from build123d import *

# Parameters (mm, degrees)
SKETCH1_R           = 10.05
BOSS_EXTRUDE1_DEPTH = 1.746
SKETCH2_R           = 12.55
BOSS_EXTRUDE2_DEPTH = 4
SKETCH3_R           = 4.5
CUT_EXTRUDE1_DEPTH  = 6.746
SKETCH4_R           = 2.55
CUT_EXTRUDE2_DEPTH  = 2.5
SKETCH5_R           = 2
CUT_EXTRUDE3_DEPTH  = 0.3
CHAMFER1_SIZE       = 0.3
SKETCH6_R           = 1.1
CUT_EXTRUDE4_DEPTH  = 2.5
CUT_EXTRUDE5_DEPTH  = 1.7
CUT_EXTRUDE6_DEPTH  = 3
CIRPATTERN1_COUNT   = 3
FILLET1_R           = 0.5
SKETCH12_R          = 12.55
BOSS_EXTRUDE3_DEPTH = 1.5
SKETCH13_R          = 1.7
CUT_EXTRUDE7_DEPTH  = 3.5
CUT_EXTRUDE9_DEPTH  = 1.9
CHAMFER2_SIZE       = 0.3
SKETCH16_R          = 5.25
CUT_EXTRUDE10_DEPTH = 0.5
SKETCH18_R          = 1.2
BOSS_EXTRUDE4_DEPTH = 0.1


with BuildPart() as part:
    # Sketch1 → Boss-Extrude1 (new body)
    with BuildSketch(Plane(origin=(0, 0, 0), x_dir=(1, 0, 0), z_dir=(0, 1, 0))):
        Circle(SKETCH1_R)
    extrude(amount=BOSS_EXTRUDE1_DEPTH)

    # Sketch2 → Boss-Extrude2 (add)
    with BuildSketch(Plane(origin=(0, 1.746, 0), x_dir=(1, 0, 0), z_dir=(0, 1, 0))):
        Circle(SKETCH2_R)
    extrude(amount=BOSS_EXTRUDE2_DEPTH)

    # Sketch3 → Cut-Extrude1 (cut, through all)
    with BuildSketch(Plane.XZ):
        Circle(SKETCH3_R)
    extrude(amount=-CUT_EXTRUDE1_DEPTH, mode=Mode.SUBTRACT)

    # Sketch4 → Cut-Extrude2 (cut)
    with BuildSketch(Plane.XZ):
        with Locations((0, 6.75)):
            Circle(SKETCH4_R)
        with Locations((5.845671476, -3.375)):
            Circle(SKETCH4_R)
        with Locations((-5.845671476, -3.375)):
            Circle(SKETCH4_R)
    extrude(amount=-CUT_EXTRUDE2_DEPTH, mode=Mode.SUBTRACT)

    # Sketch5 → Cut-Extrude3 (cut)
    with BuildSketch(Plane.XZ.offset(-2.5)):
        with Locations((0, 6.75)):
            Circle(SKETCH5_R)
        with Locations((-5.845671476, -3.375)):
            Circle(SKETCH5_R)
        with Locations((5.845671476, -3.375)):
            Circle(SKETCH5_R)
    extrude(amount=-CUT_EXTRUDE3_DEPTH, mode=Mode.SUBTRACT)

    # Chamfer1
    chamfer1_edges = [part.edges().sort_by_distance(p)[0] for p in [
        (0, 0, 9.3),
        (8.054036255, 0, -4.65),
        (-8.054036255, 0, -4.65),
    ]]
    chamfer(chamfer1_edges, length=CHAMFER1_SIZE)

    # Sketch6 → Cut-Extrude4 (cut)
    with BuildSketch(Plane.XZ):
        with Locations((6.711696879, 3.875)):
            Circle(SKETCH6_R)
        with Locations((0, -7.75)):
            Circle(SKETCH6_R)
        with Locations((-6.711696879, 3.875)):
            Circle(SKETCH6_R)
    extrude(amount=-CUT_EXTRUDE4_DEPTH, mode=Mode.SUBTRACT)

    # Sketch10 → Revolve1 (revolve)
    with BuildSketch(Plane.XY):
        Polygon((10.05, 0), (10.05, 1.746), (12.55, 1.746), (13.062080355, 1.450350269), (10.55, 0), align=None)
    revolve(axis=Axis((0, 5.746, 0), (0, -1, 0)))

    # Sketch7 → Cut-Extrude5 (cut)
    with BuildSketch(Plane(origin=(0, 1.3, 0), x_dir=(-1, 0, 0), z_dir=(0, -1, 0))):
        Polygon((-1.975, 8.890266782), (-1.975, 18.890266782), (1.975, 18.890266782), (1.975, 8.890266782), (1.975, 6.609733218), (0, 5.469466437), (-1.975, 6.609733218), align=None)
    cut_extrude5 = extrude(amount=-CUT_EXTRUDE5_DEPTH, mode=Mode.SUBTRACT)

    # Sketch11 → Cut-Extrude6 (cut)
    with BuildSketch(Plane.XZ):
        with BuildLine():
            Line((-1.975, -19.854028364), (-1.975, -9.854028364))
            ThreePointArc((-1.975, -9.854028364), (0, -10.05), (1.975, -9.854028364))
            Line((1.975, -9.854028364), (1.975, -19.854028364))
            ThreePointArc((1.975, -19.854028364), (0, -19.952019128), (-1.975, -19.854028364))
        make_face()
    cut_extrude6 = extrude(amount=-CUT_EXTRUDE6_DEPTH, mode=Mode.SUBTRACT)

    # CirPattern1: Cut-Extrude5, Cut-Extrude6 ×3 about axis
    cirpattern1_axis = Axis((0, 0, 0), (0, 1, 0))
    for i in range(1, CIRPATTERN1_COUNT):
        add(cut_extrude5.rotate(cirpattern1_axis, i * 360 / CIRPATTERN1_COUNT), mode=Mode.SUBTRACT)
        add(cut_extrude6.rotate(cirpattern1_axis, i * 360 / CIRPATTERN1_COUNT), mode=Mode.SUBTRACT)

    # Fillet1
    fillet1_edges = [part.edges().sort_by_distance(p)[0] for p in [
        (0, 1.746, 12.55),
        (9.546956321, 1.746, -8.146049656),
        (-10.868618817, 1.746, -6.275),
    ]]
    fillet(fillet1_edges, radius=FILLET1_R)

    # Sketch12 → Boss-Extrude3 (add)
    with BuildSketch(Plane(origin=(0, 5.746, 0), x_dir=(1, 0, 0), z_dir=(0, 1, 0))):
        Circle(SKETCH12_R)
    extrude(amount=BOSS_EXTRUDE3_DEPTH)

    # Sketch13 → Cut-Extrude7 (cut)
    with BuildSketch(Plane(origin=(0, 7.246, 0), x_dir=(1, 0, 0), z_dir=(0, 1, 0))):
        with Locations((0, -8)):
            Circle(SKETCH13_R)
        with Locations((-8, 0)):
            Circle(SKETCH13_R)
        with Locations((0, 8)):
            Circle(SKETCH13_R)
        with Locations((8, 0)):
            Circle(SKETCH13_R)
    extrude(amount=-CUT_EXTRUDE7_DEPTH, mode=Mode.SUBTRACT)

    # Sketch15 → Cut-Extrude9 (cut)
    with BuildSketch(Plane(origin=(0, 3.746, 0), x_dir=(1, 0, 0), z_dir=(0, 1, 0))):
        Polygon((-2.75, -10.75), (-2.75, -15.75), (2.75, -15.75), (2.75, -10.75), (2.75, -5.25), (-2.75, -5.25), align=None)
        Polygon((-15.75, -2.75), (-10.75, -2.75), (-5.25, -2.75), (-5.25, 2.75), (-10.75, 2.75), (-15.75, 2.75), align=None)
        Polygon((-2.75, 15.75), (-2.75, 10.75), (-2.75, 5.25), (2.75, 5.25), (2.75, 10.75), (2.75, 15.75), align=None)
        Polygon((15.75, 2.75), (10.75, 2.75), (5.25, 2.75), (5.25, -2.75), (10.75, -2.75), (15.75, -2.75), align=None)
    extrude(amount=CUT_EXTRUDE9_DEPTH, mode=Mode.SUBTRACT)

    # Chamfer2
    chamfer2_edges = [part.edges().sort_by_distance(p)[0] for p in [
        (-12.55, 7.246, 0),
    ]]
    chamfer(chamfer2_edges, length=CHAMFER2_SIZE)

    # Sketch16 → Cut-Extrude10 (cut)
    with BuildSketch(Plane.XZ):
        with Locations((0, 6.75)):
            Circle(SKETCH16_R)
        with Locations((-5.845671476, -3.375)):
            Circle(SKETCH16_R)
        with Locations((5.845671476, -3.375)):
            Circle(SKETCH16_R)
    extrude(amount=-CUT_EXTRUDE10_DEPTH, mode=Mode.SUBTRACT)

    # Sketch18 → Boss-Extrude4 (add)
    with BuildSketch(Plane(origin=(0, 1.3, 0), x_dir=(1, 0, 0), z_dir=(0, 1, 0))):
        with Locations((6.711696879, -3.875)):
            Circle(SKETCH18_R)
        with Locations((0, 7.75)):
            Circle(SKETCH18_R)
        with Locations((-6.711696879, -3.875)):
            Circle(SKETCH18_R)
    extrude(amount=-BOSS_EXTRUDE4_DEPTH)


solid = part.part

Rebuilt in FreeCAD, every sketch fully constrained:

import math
import FreeCAD as App
import Part
import Sketcher
from FreeCAD import Vector
Q = App.Units.Quantity


def edges_at(feature, points):
    """Names of the edges that pass closest to the given points."""
    edges = feature.Shape.Edges
    near = lambda p: min(range(len(edges)), key=lambda i: edges[i].distToShape(Part.Vertex(*p))[0])
    return sorted({f"Edge{near(p) + 1}" for p in points})


def add_polygon(sketch, points):
    """Adds a closed chain of lines whose ends are joined by coincident constraints."""
    first, n = sketch.GeometryCount, len(points)
    for a, b in zip(points, points[1:] + points[:1]):
        sketch.addGeometry(Part.LineSegment(App.Vector(*a, 0), App.Vector(*b, 0)), False)
    for i in range(n):
        sketch.addConstraint(Sketcher.Constraint("Coincident", first + i, 2, first + (i + 1) % n, 1))

doc = App.newDocument("Part")
body = doc.addObject("PartDesign::Body", "Body")

# Sketch on XZ plane
sketch1 = body.newObject("Sketcher::SketchObject", "Sketch")
sketch1.AttachmentSupport = (doc.getObject("XZ_Plane"), [""])
sketch1.MapMode = "FlatFace"
sketch1.addGeometry(Part.Circle(Vector(0, 0, 0), Vector(0, 0, 1), 10), False)
sketch1.addConstraint([
    Sketcher.Constraint("Coincident", 0, 3, -1, 1),
    Sketcher.Constraint("Diameter", 0, 20.1),
])
pad1 = body.newObject("PartDesign::Pad", "Pad")
pad1.Profile = sketch1
pad1.Length = 1.746
pad1.Reversed = True

# Sketch on XZ plane
sketch2 = body.newObject("Sketcher::SketchObject", "Sketch001")
sketch2.AttachmentSupport = (doc.getObject("XZ_Plane"), [""])
sketch2.MapMode = "FlatFace"
sketch2.AttachmentOffset = App.Placement(Vector(0, 0, -1.746), App.Rotation())
sketch2.addGeometry(Part.Circle(Vector(0, 0, 0), Vector(0, 0, 1), 13), False)
sketch2.addConstraint([
    Sketcher.Constraint("Coincident", 0, 3, -1, 1),
    Sketcher.Constraint("Diameter", 0, 25.1),
])
pad2 = body.newObject("PartDesign::Pad", "Pad001")
pad2.Profile = sketch2
pad2.Length = 4
pad2.Reversed = True

# Sketch on XZ plane
sketch3 = body.newObject("Sketcher::SketchObject", "Sketch002")
sketch3.AttachmentSupport = (doc.getObject("XZ_Plane"), [""])
sketch3.MapMode = "FlatFace"
sketch3.addGeometry(Part.Circle(Vector(0, 0, 0), Vector(0, 0, 1), 4.5), False)
sketch3.addConstraint([
    Sketcher.Constraint("Coincident", 0, 3, -1, 1),
    Sketcher.Constraint("Diameter", 0, 9.0),
])
pocket1 = body.newObject("PartDesign::Pocket", "Pocket")
pocket1.Profile = sketch3
pocket1.Type = "ThroughAll"

# Sketch on XZ plane
sketch4 = body.newObject("Sketcher::SketchObject", "Sketch003")
sketch4.AttachmentSupport = (doc.getObject("XZ_Plane"), [""])
sketch4.MapMode = "FlatFace"
sketch4.addGeometry([
    Part.Circle(Vector(0, 6.8, 0), Vector(0, 0, 1), 2.5),
    Part.Circle(Vector(5.8, -3.4, 0), Vector(0, 0, 1), 2.5),
    Part.Circle(Vector(-5.8, -3.4, 0), Vector(0, 0, 1), 2.5),
], False)
sketch4.addConstraint([
    Sketcher.Constraint("Equal", 0, 1),
    Sketcher.Constraint("Equal", 1, 2),
    Sketcher.Constraint("Symmetric", 1, 3, 2, 3, -2),
    Sketcher.Constraint("PointOnObject", 0, 3, -2),
    Sketcher.Constraint("Diameter", 0, 5.1),
    Sketcher.Constraint("DistanceY", -1, 1, 0, 3, 6.75),
    Sketcher.Constraint("DistanceY", 1, 3, -1, 1, 3.375),
    Sketcher.Constraint("DistanceX", -1, 1, 1, 3, 5.845671),
])
pocket2 = body.newObject("PartDesign::Pocket", "Pocket001")
pocket2.Profile = sketch4
pocket2.Length = 2.5

# Sketch on XZ plane
sketch5 = body.newObject("Sketcher::SketchObject", "Sketch004")
sketch5.AttachmentSupport = (doc.getObject("XZ_Plane"), [""])
sketch5.MapMode = "FlatFace"
sketch5.AttachmentOffset = App.Placement(Vector(0, 0, -2.5), App.Rotation())
sketch5.addGeometry([
    Part.Circle(Vector(0, 6.8, 0), Vector(0, 0, 1), 2),
    Part.Circle(Vector(-5.8, -3.4, 0), Vector(0, 0, 1), 2),
    Part.Circle(Vector(5.8, -3.4, 0), Vector(0, 0, 1), 2),
], False)
sketch5.addConstraint([
    Sketcher.Constraint("Equal", 0, 1),
    Sketcher.Constraint("Equal", 1, 2),
    Sketcher.Constraint("Symmetric", 1, 3, 2, 3, -2),
    Sketcher.Constraint("PointOnObject", 0, 3, -2),
    Sketcher.Constraint("Diameter", 0, 4.0),
    Sketcher.Constraint("DistanceY", -1, 1, 0, 3, 6.75),
    Sketcher.Constraint("DistanceY", 1, 3, -1, 1, 3.375),
    Sketcher.Constraint("DistanceX", 1, 3, -1, 1, 5.845671),
])
pocket3 = body.newObject("PartDesign::Pocket", "Pocket002")
pocket3.Profile = sketch5
pocket3.Length = 0.3
doc.recompute()

chamfer = body.newObject("PartDesign::Chamfer", "Chamfer")
chamfer.Base = (pocket3, edges_at(pocket3, [(0, 0, 9.3), (8.054, 0, -4.65), (-8.054, 0, -4.65)]))
chamfer.Size = 0.3

# Sketch on XZ plane
sketch6 = body.newObject("Sketcher::SketchObject", "Sketch005")
sketch6.AttachmentSupport = (doc.getObject("XZ_Plane"), [""])
sketch6.MapMode = "FlatFace"
sketch6.addGeometry([
    Part.Circle(Vector(6.7, 3.9, 0), Vector(0, 0, 1), 1.1),
    Part.Circle(Vector(0, -7.8, 0), Vector(0, 0, 1), 1.1),
    Part.Circle(Vector(-6.7, 3.9, 0), Vector(0, 0, 1), 1.1),
], False)
sketch6.addConstraint([
    Sketcher.Constraint("Equal", 0, 1),
    Sketcher.Constraint("Equal", 1, 2),
    Sketcher.Constraint("Symmetric", 0, 3, 2, 3, -2),
    Sketcher.Constraint("PointOnObject", 1, 3, -2),
    Sketcher.Constraint("Diameter", 0, 2.2),
    Sketcher.Constraint("DistanceY", 1, 3, -1, 1, 7.75),
    Sketcher.Constraint("DistanceY", -1, 1, 0, 3, 3.875),
    Sketcher.Constraint("DistanceX", -1, 1, 0, 3, 6.711697),
])
pocket4 = body.newObject("PartDesign::Pocket", "Pocket003")
pocket4.Profile = sketch6
pocket4.Length = 2.5

# Sketch on XY plane
sketch7 = body.newObject("Sketcher::SketchObject", "Sketch006")
sketch7.AttachmentSupport = (doc.getObject("XY_Plane"), [""])
sketch7.MapMode = "FlatFace"
add_polygon(sketch7, [(10.1, 1.7), (10.1, 0), (10.6, 0), (13.1, 1.5), (12.6, 1.7)])  # lines 0-4
sketch7.addConstraint([
    Sketcher.Constraint("Vertical", 0),
    Sketcher.Constraint("Horizontal", 1),
    Sketcher.Constraint("Horizontal", 4),
    Sketcher.Constraint("PointOnObject", 0, 2, -1),
    Sketcher.Constraint("Angle", 2, Q("30 deg")),
    Sketcher.Constraint("Angle", 3, Q("150 deg")),
    Sketcher.Constraint("DistanceX", 1, 1, 1, 2, 0.5),
    Sketcher.Constraint("DistanceX", 4, 2, 4, 1, 2.5),
    Sketcher.Constraint("DistanceY", 0, 2, 0, 1, 1.746),
    Sketcher.Constraint("DistanceX", -1, 1, 0, 2, 10.05),
])
revolution = body.newObject("PartDesign::Revolution", "Revolution")
revolution.Profile = sketch7
revolution.ReferenceAxis = (sketch7, ["V_Axis"])
revolution.Angle = 360

# Sketch on XZ plane
sketch8 = body.newObject("Sketcher::SketchObject", "Sketch007")
sketch8.AttachmentSupport = (doc.getObject("XZ_Plane"), [""])
sketch8.MapMode = "FlatFace"
sketch8.AttachmentOffset = App.Placement(Vector(0, 0, -1.3), App.Rotation())
add_polygon(sketch8, [(2, -18.9), (2, -6.6), (0, -5.5), (-2, -6.6), (-2, -18.9)])  # lines 0-4
sketch8.addConstraint([
    Sketcher.Constraint("Vertical", 0),
    Sketcher.Constraint("Vertical", 3),
    Sketcher.Constraint("Horizontal", 4),
    Sketcher.Constraint("Symmetric", 0, 2, 2, 2, -2),
    Sketcher.Constraint("PointOnObject", 1, 2, -2),
    Sketcher.Constraint("Angle", 1, Q("150 deg")),
    Sketcher.Constraint("DistanceX", 4, 1, 4, 2, 3.95),
    Sketcher.Constraint("DistanceY", 3, 2, 1, 2, 13.4208),
    Sketcher.Constraint("DistanceY", 0, 2, -1, 1, 6.609733),
])
pocket5 = body.newObject("PartDesign::Pocket", "Pocket004")
pocket5.Profile = sketch8
pocket5.Length = 1.7

# Sketch on XZ plane
sketch9 = body.newObject("Sketcher::SketchObject", "Sketch008")
sketch9.AttachmentSupport = (doc.getObject("XZ_Plane"), [""])
sketch9.MapMode = "FlatFace"
sketch9.addGeometry([
    Part.LineSegment(Vector(-2, -9.9, 0), Vector(-2, -19.9, 0)),
    Part.ArcOfCircle(Part.Circle(Vector(0, 0, 0), Vector(0, 0, 1), 20), math.radians(-95.68), math.radians(-84.32)),
    Part.LineSegment(Vector(2, -19.9, 0), Vector(2, -9.9, 0)),
    Part.ArcOfCircle(Part.Circle(Vector(0, 0, 0), Vector(0, 0, 1), 10), math.radians(-101), math.radians(-79)),
], False)
sketch9.addConstraint([
    Sketcher.Constraint("Coincident", 0, 2, 1, 1),
    Sketcher.Constraint("Coincident", 1, 2, 2, 1),
    Sketcher.Constraint("Coincident", 2, 2, 3, 2),
    Sketcher.Constraint("Coincident", 3, 1, 0, 1),
    Sketcher.Constraint("Vertical", 0),
    Sketcher.Constraint("Vertical", 2),
    Sketcher.Constraint("Coincident", 1, 3, -1, 1),
    Sketcher.Constraint("Coincident", 3, 3, -1, 1),
    Sketcher.Constraint("Horizontal", 0, 2, 1, 2),
    Sketcher.Constraint("DistanceY", 0, 2, 0, 1, 10.0),
    Sketcher.Constraint("Radius", 3, 10.05),
    Sketcher.Constraint("Radius", 1, 19.952019),
])
pocket6 = body.newObject("PartDesign::Pocket", "Pocket005")
pocket6.Profile = sketch9
pocket6.Length = 3
doc.recompute()

polarpattern = body.newObject("PartDesign::PolarPattern", "PolarPattern")
polarpattern.Originals = [pocket5, pocket6]
polarpattern.Axis = (doc.getObject("Y_Axis"), [""])
polarpattern.Angle = 360
polarpattern.Occurrences = 3
body.Tip = polarpattern
doc.recompute()

fillet = body.newObject("PartDesign::Fillet", "Fillet")
fillet.Base = (polarpattern, edges_at(polarpattern, [(0, 1.746, 12.55), (9.547, 1.746, -8.146), (-10.869, 1.746, -6.275)]))
fillet.Radius = 0.5

# Sketch on XZ plane
sketch10 = body.newObject("Sketcher::SketchObject", "Sketch009")
sketch10.AttachmentSupport = (doc.getObject("XZ_Plane"), [""])
sketch10.MapMode = "FlatFace"
sketch10.AttachmentOffset = App.Placement(Vector(0, 0, -5.746), App.Rotation())
sketch10.addGeometry(Part.Circle(Vector(0, 0, 0), Vector(0, 0, 1), 13), False)
sketch10.addConstraint([
    Sketcher.Constraint("Coincident", 0, 3, -1, 1),
    Sketcher.Constraint("Diameter", 0, 25.1),
])
pad3 = body.newObject("PartDesign::Pad", "Pad002")
pad3.Profile = sketch10
pad3.Length = 1.5
pad3.Reversed = True

# Sketch on XZ plane
sketch11 = body.newObject("Sketcher::SketchObject", "Sketch010")
sketch11.AttachmentSupport = (doc.getObject("XZ_Plane"), [""])
sketch11.MapMode = "FlatFace"
sketch11.AttachmentOffset = App.Placement(Vector(0, 0, -7.246), App.Rotation())
sketch11.addGeometry([
    Part.Circle(Vector(0, 8, 0), Vector(0, 0, 1), 1.7),
    Part.Circle(Vector(-8, 0, 0), Vector(0, 0, 1), 1.7),
    Part.Circle(Vector(0, -8, 0), Vector(0, 0, 1), 1.7),
    Part.Circle(Vector(8, 0, 0), Vector(0, 0, 1), 1.7),
], False)
sketch11.addConstraint([
    Sketcher.Constraint("Equal", 0, 1),
    Sketcher.Constraint("Equal", 1, 2),
    Sketcher.Constraint("Equal", 2, 3),
    Sketcher.Constraint("Symmetric", 0, 3, 2, 3, -1, 1),
    Sketcher.Constraint("Symmetric", 1, 3, 3, 3, -1, 1),
    Sketcher.Constraint("PointOnObject", 0, 3, -2),
    Sketcher.Constraint("PointOnObject", 1, 3, -1),
    Sketcher.Constraint("Diameter", 0, 3.4),
    Sketcher.Constraint("DistanceY", -1, 1, 0, 3, 8.0),
    Sketcher.Constraint("DistanceX", 1, 3, -1, 1, 8.0),
])
pocket7 = body.newObject("PartDesign::Pocket", "Pocket006")
pocket7.Profile = sketch11
pocket7.Length = 3.5
pocket7.Reversed = True

# Sketch on XZ plane
sketch12 = body.newObject("Sketcher::SketchObject", "Sketch011")
sketch12.AttachmentSupport = (doc.getObject("XZ_Plane"), [""])
sketch12.MapMode = "FlatFace"
sketch12.AttachmentOffset = App.Placement(Vector(0, 0, -3.746), App.Rotation())
add_polygon(sketch12, [(-3, 16), (3, 16), (3, 5), (-3, 5)])  # lines 0-3
add_polygon(sketch12, [(-16, 3), (-5, 3), (-5, -3), (-16, -3)])  # lines 4-7
add_polygon(sketch12, [(-3, -16), (-3, -5), (3, -5), (3, -16)])  # lines 8-11
add_polygon(sketch12, [(16, -3), (5, -3), (5, 3), (16, 3)])  # lines 12-15
sketch12.addConstraint([
    Sketcher.Constraint("Horizontal", 0),
    Sketcher.Constraint("Vertical", 1),
    Sketcher.Constraint("Horizontal", 2),
    Sketcher.Constraint("Vertical", 3),
    Sketcher.Constraint("Horizontal", 4),
    Sketcher.Constraint("Vertical", 5),
    Sketcher.Constraint("Horizontal", 6),
    Sketcher.Constraint("Vertical", 7),
    Sketcher.Constraint("Vertical", 8),
    Sketcher.Constraint("Horizontal", 9),
    Sketcher.Constraint("Vertical", 10),
    Sketcher.Constraint("Horizontal", 11),
    Sketcher.Constraint("Horizontal", 12),
    Sketcher.Constraint("Vertical", 13),
    Sketcher.Constraint("Horizontal", 14),
    Sketcher.Constraint("Vertical", 15),
    Sketcher.Constraint("Symmetric", 1, 2, 8, 2, -1, 1),
    Sketcher.Constraint("Symmetric", 3, 2, 10, 2, -1, 1),
    Sketcher.Constraint("Symmetric", 4, 2, 12, 2, -1, 1),
    Sketcher.Constraint("Symmetric", 6, 2, 14, 2, -1, 1),
    Sketcher.Constraint("Horizontal", 6, 2, 12, 2),
    Sketcher.Constraint("Vertical", 3, 2, 8, 2),
    Sketcher.Constraint("Equal", 14, 1),
    Sketcher.Constraint("Equal", 11, 5),
    Sketcher.Constraint("DistanceX", 0, 1, 0, 2, 5.5),
    Sketcher.Constraint("DistanceX", 4, 1, 4, 2, 10.5),
    Sketcher.Constraint("DistanceX", 4, 2, 1, 2, 8.0),
    Sketcher.Constraint("DistanceY", 4, 2, 3, 2, 13.0),
])
pocket8 = body.newObject("PartDesign::Pocket", "Pocket007")
pocket8.Profile = sketch12
pocket8.Length = 1.9
doc.recompute()

chamfer2 = body.newObject("PartDesign::Chamfer", "Chamfer001")
chamfer2.Base = (pocket8, edges_at(pocket8, [(-12.55, 7.246, 0)]))
chamfer2.Size = 0.3

# Sketch on XZ plane
sketch13 = body.newObject("Sketcher::SketchObject", "Sketch012")
sketch13.AttachmentSupport = (doc.getObject("XZ_Plane"), [""])
sketch13.MapMode = "FlatFace"
sketch13.addGeometry([
    Part.Circle(Vector(0, 7, 0), Vector(0, 0, 1), 5),
    Part.Circle(Vector(-6, -3, 0), Vector(0, 0, 1), 5),
    Part.Circle(Vector(6, -3, 0), Vector(0, 0, 1), 5),
], False)
sketch13.addConstraint([
    Sketcher.Constraint("Equal", 0, 1),
    Sketcher.Constraint("Equal", 1, 2),
    Sketcher.Constraint("Symmetric", 1, 3, 2, 3, -2),
    Sketcher.Constraint("PointOnObject", 0, 3, -2),
    Sketcher.Constraint("Diameter", 0, 10.5),
    Sketcher.Constraint("DistanceY", -1, 1, 0, 3, 6.75),
    Sketcher.Constraint("DistanceY", 1, 3, -1, 1, 3.375),
    Sketcher.Constraint("DistanceX", 1, 3, -1, 1, 5.845671),
])
pocket9 = body.newObject("PartDesign::Pocket", "Pocket008")
pocket9.Profile = sketch13
pocket9.Length = 0.5

# Sketch on XZ plane
sketch14 = body.newObject("Sketcher::SketchObject", "Sketch013")
sketch14.AttachmentSupport = (doc.getObject("XZ_Plane"), [""])
sketch14.MapMode = "FlatFace"
sketch14.AttachmentOffset = App.Placement(Vector(0, 0, -1.3), App.Rotation())
sketch14.addGeometry([
    Part.Circle(Vector(6.7, 3.9, 0), Vector(0, 0, 1), 1.2),
    Part.Circle(Vector(0, -7.8, 0), Vector(0, 0, 1), 1.2),
    Part.Circle(Vector(-6.7, 3.9, 0), Vector(0, 0, 1), 1.2),
], False)
sketch14.addConstraint([
    Sketcher.Constraint("Equal", 0, 1),
    Sketcher.Constraint("Equal", 1, 2),
    Sketcher.Constraint("Symmetric", 0, 3, 2, 3, -2),
    Sketcher.Constraint("PointOnObject", 1, 3, -2),
    Sketcher.Constraint("Diameter", 0, 2.4),
    Sketcher.Constraint("DistanceY", 1, 3, -1, 1, 7.75),
    Sketcher.Constraint("DistanceY", -1, 1, 0, 3, 3.875),
    Sketcher.Constraint("DistanceX", -1, 1, 0, 3, 6.711697),
])
pad4 = body.newObject("PartDesign::Pad", "Pad003")
pad4.Profile = sketch14
pad4.Length = 0.1

doc.recompute()
